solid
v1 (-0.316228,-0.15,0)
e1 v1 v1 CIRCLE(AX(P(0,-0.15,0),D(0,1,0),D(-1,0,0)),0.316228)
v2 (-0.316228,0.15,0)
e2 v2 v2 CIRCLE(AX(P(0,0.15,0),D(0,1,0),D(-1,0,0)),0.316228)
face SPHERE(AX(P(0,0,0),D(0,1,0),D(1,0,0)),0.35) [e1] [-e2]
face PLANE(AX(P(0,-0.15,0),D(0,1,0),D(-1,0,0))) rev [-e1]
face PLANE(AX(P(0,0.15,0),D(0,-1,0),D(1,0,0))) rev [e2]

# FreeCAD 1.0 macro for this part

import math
import FreeCAD as App
import Part
import Sketcher

V = App.Vector

doc = App.newDocument("Part")
body = doc.addObject("PartDesign::Body", "Body")

# Sketch on XY plane
sketch1 = doc.addObject("Sketcher::SketchObject", "Sketch")
body.addObject(sketch1)
sketch1.AttachmentSupport = (doc.XY_Plane, [""])
sketch1.MapMode = "FlatFace"
sketch1.addGeometry([
    Part.LineSegment(V(0, 0.15, 0), V(0, -0.15, 0)),
    Part.LineSegment(V(0, -0.15, 0), V(0.32, -0.15, 0)),
    Part.ArcOfCircle(Part.Circle(V(0, 0, 0), V(0, 0, 1), 0.35), math.radians(-25), math.radians(25)),
    Part.LineSegment(V(0.32, 0.15, 0), V(0, 0.15, 0)),
], False)
sketch1.addConstraint([
    Sketcher.Constraint("Coincident", 0, 2, 1, 1),
    Sketcher.Constraint("Coincident", 1, 2, 2, 1),
    Sketcher.Constraint("Coincident", 2, 2, 3, 1),
    Sketcher.Constraint("Coincident", 3, 2, 0, 1),
    Sketcher.Constraint("Vertical", 0),
    Sketcher.Constraint("Horizontal", 1),
    Sketcher.Constraint("Horizontal", 3),
    Sketcher.Constraint("Coincident", 2, 3, -1, 1),
    Sketcher.Constraint("Symmetric", 0, 2, 3, 2, -1, 1),
    Sketcher.Constraint("Radius", 2, 0.35),
    Sketcher.Constraint("DistanceY", 0, 2, 0, 1, 0.3),
])
revolution = doc.addObject("PartDesign::Revolution", "Revolution")
body.addObject(revolution)
revolution.Profile = sketch1
revolution.ReferenceAxis = (sketch1, ["V_Axis"])
revolution.Angle = 360

doc.recompute()
